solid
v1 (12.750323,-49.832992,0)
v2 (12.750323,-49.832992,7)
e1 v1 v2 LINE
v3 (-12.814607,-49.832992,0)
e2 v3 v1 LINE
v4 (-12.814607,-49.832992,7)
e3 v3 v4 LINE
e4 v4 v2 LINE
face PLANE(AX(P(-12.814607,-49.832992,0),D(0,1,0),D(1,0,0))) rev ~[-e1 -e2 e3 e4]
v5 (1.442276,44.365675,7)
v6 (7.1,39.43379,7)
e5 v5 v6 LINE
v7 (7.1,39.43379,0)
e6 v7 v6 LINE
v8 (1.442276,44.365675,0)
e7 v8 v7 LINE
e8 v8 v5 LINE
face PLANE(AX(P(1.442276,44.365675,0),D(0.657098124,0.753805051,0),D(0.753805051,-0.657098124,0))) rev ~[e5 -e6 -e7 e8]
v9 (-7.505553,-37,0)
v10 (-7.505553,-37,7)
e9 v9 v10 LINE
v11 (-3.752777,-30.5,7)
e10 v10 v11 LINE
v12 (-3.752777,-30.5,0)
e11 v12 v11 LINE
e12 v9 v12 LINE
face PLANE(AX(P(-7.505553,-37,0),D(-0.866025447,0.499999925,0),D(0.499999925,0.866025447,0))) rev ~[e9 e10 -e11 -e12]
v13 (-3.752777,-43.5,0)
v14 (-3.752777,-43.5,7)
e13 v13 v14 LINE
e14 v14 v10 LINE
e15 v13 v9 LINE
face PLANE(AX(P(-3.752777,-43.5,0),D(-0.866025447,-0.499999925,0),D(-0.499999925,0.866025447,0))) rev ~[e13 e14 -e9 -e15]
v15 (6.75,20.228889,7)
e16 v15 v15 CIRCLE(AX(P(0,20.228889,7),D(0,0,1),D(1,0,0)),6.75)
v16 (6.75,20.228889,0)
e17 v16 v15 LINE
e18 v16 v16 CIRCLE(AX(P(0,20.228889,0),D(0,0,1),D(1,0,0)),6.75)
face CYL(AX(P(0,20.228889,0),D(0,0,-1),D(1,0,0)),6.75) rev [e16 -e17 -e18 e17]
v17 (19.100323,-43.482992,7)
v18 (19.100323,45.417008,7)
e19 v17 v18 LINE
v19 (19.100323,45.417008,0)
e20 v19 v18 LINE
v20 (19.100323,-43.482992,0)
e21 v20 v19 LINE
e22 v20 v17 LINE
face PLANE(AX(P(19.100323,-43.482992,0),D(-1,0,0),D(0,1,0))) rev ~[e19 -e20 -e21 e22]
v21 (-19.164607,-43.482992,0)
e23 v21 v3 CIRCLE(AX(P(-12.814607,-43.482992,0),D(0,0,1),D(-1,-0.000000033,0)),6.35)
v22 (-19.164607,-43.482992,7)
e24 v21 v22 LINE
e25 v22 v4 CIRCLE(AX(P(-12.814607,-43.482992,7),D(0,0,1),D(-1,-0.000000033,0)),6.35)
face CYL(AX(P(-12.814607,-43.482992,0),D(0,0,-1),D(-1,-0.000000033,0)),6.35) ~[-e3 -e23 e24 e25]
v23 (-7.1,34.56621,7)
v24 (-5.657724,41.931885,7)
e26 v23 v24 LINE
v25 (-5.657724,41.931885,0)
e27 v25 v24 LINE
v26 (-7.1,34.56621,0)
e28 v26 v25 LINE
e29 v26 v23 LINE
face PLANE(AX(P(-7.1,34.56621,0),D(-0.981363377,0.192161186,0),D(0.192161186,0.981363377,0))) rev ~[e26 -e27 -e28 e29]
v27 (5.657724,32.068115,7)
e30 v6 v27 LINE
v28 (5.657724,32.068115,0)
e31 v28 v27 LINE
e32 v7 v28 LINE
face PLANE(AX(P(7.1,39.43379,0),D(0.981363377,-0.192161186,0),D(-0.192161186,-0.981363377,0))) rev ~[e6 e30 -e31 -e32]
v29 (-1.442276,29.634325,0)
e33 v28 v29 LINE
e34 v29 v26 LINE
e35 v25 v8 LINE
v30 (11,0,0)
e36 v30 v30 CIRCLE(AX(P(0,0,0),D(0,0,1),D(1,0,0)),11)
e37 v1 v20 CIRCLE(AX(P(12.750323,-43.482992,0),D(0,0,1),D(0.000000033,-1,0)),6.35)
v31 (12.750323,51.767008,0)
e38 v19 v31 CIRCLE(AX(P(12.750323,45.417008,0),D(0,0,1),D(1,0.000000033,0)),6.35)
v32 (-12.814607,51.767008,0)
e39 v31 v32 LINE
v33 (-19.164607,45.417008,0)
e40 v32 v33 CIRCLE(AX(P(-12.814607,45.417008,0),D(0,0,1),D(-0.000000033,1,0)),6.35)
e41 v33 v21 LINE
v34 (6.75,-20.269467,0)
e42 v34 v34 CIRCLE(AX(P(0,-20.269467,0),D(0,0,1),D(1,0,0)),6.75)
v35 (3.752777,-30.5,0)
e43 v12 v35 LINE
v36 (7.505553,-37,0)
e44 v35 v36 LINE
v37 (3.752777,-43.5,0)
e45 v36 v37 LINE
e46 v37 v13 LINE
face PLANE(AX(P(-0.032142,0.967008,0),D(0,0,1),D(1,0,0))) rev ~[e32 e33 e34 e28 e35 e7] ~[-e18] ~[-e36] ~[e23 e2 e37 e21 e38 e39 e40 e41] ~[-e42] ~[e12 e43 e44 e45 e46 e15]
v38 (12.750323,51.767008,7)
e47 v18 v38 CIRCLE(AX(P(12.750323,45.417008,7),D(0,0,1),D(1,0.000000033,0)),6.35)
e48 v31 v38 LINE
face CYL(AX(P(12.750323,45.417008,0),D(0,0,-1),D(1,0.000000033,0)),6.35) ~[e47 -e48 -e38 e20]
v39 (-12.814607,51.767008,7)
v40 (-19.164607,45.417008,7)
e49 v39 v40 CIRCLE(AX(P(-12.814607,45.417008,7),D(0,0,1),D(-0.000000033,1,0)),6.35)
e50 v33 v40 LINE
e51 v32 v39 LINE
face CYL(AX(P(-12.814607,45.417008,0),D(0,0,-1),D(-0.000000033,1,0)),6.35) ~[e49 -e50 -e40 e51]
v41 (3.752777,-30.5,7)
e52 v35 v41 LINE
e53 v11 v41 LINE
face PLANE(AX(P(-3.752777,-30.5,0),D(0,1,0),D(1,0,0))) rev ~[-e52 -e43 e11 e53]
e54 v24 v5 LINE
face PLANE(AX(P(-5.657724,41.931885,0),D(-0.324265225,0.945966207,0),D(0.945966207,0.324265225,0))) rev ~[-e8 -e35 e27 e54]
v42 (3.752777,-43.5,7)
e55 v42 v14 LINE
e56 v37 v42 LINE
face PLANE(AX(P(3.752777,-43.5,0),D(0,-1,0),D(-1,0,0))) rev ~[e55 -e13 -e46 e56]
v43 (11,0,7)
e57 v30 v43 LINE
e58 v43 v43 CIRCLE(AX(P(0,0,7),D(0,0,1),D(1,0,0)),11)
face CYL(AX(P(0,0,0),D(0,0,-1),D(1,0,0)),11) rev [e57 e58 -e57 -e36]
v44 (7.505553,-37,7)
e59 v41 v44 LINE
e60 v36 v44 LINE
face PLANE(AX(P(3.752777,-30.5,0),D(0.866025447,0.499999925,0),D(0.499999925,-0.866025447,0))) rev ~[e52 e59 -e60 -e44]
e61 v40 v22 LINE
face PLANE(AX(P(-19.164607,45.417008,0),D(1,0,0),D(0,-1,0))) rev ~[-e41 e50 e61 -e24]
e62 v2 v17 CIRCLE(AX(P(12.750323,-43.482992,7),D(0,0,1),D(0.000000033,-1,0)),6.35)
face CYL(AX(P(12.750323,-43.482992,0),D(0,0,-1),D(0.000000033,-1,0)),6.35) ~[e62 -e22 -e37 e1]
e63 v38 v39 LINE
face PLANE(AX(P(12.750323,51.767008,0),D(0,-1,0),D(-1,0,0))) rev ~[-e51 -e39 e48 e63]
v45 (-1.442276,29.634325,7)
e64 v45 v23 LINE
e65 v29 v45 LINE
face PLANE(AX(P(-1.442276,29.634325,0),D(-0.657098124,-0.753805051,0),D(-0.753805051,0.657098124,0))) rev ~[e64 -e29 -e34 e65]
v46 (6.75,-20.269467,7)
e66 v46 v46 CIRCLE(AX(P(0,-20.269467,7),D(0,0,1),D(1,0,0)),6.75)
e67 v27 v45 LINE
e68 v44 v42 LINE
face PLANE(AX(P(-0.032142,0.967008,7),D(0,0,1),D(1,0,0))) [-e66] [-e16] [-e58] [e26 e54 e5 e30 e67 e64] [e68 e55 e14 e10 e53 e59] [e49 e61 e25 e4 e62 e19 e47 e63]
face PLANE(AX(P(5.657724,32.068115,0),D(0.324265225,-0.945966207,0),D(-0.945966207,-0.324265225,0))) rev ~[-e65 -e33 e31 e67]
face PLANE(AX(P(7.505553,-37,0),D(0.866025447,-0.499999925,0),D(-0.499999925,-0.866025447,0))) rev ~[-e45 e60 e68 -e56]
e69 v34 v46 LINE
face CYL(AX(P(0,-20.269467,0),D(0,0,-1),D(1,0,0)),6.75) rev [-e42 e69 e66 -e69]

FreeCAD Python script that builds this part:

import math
import FreeCAD as App
import Part
import Sketcher
from FreeCAD import Vector
Q = App.Units.Quantity


def add_polygon(sketch, points):
    """Adds a closed chain of lines whose ends are joined by coincident constraints."""
    first, n = sketch.GeometryCount, len(points)
    for a, b in zip(points, points[1:] + points[:1]):
        sketch.addGeometry(Part.LineSegment(App.Vector(*a, 0), App.Vector(*b, 0)), False)
    for i in range(n):
        sketch.addConstraint(Sketcher.Constraint("Coincident", first + i, 2, first + (i + 1) % n, 1))

doc = App.newDocument("Part")
body = doc.addObject("PartDesign::Body", "Body")

# Sketch on XY plane
sketch1 = body.newObject("Sketcher::SketchObject", "Sketch")
sketch1.AttachmentSupport = (doc.getObject("XY_Plane"), [""])
sketch1.MapMode = "FlatFace"
sketch1.addGeometry(Part.LineSegment(Vector(13, 52, 0), Vector(-13, 52, 0)), False)  # 0
sketch1.addGeometry(Part.ArcOfCircle(Part.Circle(Vector(-13, 45, 0), Vector(0, 0, 1), 6), math.radians(90), math.radians(180)), False)  # 1
sketch1.addGeometry(Part.LineSegment(Vector(-19, 45, 0), Vector(-19, -43, 0)), False)  # 2
sketch1.addGeometry(Part.ArcOfCircle(Part.Circle(Vector(-13, -43, 0), Vector(0, 0, 1), 6), math.radians(-180), math.radians(-90)), False)  # 3
sketch1.addGeometry(Part.LineSegment(Vector(-13, -50, 0), Vector(13, -50, 0)), False)  # 4
sketch1.addGeometry(Part.ArcOfCircle(Part.Circle(Vector(13, -43, 0), Vector(0, 0, 1), 6), math.radians(-90), math.radians(0)), False)  # 5
sketch1.addGeometry(Part.LineSegment(Vector(19, -43, 0), Vector(19, 45, 0)), False)  # 6
sketch1.addGeometry(Part.ArcOfCircle(Part.Circle(Vector(13, 45, 0), Vector(0, 0, 1), 6), math.radians(0), math.radians(90)), False)  # 7
add_polygon(sketch1, [(4, -30), (8, -37), (4, -44), (-4, -44), (-8, -37), (-4, -30)])  # lines 8-13
sketch1.addGeometry(Part.Circle(Vector(0, -20, 0), Vector(0, 0, 1), 7), False)  # 14
sketch1.addGeometry(Part.Circle(Vector(0, 0, 0), Vector(0, 0, 1), 11), False)  # 15
sketch1.addGeometry(Part.Circle(Vector(0, 20, 0), Vector(0, 0, 1), 7), False)  # 16
add_polygon(sketch1, [(-6, 42), (1, 44), (7, 39), (6, 32), (-1, 30), (-7, 35)])  # lines 17-22
sketch1.addConstraint(Sketcher.Constraint("Tangent", 0, 2, 1, 1))
sketch1.addConstraint(Sketcher.Constraint("Tangent", 1, 2, 2, 1))
sketch1.addConstraint(Sketcher.Constraint("Tangent", 2, 2, 3, 1))
sketch1.addConstraint(Sketcher.Constraint("Tangent", 3, 2, 4, 1))
sketch1.addConstraint(Sketcher.Constraint("Tangent", 4, 2, 5, 1))
sketch1.addConstraint(Sketcher.Constraint("Tangent", 5, 2, 6, 1))
sketch1.addConstraint(Sketcher.Constraint("Tangent", 6, 2, 7, 1))
sketch1.addConstraint(Sketcher.Constraint("Tangent", 7, 2, 0, 1))
sketch1.addConstraint(Sketcher.Constraint("Horizontal", 0))
sketch1.addConstraint(Sketcher.Constraint("Vertical", 2))
sketch1.addConstraint(Sketcher.Constraint("Horizontal", 4))
sketch1.addConstraint(Sketcher.Constraint("Vertical", 6))
sketch1.addConstraint(Sketcher.Constraint("Horizontal", 10))
sketch1.addConstraint(Sketcher.Constraint("Horizontal", 13))
sketch1.addConstraint(Sketcher.Constraint("Coincident", 15, 3, -1, 1))
sketch1.addConstraint(Sketcher.Constraint("Equal", 1, 3))
sketch1.addConstraint(Sketcher.Constraint("Equal", 3, 5))
sketch1.addConstraint(Sketcher.Constraint("Equal", 5, 7))
sketch1.addConstraint(Sketcher.Constraint("Equal", 14, 16))
sketch1.addConstraint(Sketcher.Constraint("Symmetric", 8, 2, 11, 2, -2))
sketch1.addConstraint(Sketcher.Constraint("PointOnObject", 14, 3, -2))
sketch1.addConstraint(Sketcher.Constraint("PointOnObject", 16, 3, -2))
sketch1.addConstraint(Sketcher.Constraint("Parallel", 8, 11))
sketch1.addConstraint(Sketcher.Constraint("Parallel", 9, 12))
sketch1.addConstraint(Sketcher.Constraint("Parallel", 17, 20))
sketch1.addConstraint(Sketcher.Constraint("Parallel", 18, 21))
sketch1.addConstraint(Sketcher.Constraint("Parallel", 19, 22))
sketch1.addConstraint(Sketcher.Constraint("Vertical", 10, 2, 12, 2))
sketch1.addConstraint(Sketcher.Constraint("Vertical", 9, 2, 13, 2))
sketch1.addConstraint(Sketcher.Constraint("Equal", 12, 17))
sketch1.addConstraint(Sketcher.Constraint("Equal", 17, 18))
sketch1.addConstraint(Sketcher.Constraint("Equal", 18, 19))
sketch1.addConstraint(Sketcher.Constraint("Equal", 19, 20))
sketch1.addConstraint(Sketcher.Constraint("Diameter", 15, 22.0))
sketch1.addConstraint(Sketcher.Constraint("Diameter", 14, 13.5))
sketch1.addConstraint(Sketcher.Constraint("Angle", 8, Q("-60.000005 deg")))
sketch1.addConstraint(Sketcher.Constraint("Radius", 1, 6.35))
sketch1.addConstraint(Sketcher.Constraint("DistanceY", 2, 2, 2, 1, 88.9))
sketch1.addConstraint(Sketcher.Constraint("DistanceY", 8, 2, -1, 1, 37.0))
sketch1.addConstraint(Sketcher.Constraint("DistanceY", 10, 2, 12, 2, 13.0))
sketch1.addConstraint(Sketcher.Constraint("DistanceX", -1, 1, 18, 2, 7.1))
sketch1.addConstraint(Sketcher.Constraint("DistanceX", 21, 2, -1, 1, 7.1))
sketch1.addConstraint(Sketcher.Constraint("DistanceX", 20, 2, 19, 2, 7.1))
sketch1.addConstraint(Sketcher.Constraint("DistanceX", 0, 2, 0, 1, 25.56493))
sketch1.addConstraint(Sketcher.Constraint("DistanceY", 16, 3, 18, 2, 19.204901))
sketch1.addConstraint(Sketcher.Constraint("DistanceX", 19, 2, 7, 3, 7.092599))
sketch1.addConstraint(Sketcher.Constraint("DistanceX", 10, 2, 10, 1, 7.505554))
sketch1.addConstraint(Sketcher.Constraint("DistanceY", 3, 3, -1, 1, 43.482992))
sketch1.addConstraint(Sketcher.Constraint("DistanceY", -1, 1, 16, 3, 20.228889))
sketch1.addConstraint(Sketcher.Constraint("DistanceY", -1, 1, 21, 2, 34.56621))
sketch1.addConstraint(Sketcher.Constraint("DistanceY", 14, 3, -1, 1, 20.269467))
pad1 = body.newObject("PartDesign::Pad", "Pad")
pad1.Profile = sketch1
pad1.Length = 7

doc.recompute()
